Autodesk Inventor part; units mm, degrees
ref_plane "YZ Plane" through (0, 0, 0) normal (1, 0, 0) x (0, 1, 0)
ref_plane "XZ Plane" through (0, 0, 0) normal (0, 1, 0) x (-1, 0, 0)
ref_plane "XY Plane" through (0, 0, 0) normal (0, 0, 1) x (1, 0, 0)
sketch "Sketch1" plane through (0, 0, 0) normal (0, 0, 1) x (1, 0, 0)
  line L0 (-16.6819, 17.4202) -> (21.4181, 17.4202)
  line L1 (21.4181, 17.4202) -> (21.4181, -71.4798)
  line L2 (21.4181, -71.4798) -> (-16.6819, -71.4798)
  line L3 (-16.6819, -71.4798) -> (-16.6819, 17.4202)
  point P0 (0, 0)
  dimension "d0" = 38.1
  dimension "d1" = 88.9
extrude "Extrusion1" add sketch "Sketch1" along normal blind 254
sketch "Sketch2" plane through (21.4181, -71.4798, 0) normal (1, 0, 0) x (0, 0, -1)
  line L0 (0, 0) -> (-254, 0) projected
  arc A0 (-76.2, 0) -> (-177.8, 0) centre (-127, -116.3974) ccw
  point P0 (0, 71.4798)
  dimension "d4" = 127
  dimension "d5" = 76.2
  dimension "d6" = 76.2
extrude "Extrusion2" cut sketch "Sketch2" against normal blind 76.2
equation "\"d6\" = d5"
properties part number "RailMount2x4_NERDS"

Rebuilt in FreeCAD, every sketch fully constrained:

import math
import FreeCAD as App
import Part
import Sketcher
from FreeCAD import Vector
Q = App.Units.Quantity


def add_polygon(sketch, points):
    """Adds a closed chain of lines whose ends are joined by coincident constraints."""
    first, n = sketch.GeometryCount, len(points)
    for a, b in zip(points, points[1:] + points[:1]):
        sketch.addGeometry(Part.LineSegment(App.Vector(*a, 0), App.Vector(*b, 0)), False)
    for i in range(n):
        sketch.addConstraint(Sketcher.Constraint("Coincident", first + i, 2, first + (i + 1) % n, 1))

doc = App.newDocument("Part")
params = doc.addObject("Spreadsheet::Sheet", "Params")
for row, (alias, value) in enumerate([
    ("sketch1_width", "1.5 in"),
    ("sketch1_height", "3.5 in"),
    ("pad1_length", "10 in"),
    ("sketch2_radius", "5 in"),
    ("pocket1_length", "3 in"),
], start=1):
    params.set(f"A{row}", alias)
    params.set(f"B{row}", "=" + value)
    params.setAlias(f"B{row}", alias)

body = doc.addObject("PartDesign::Body", "Body")

sketch1 = body.newObject("Sketcher::SketchObject", "Sketch")
sketch1.AttachmentSupport = (doc.getObject("XY_Plane"), [""])
sketch1.MapMode = "FlatFace"
add_polygon(sketch1, [(21, 17), (-17, 17), (-17, -71), (21, -71)])
sketch1.addConstraint([
    Sketcher.Constraint("Horizontal", 0),
    Sketcher.Constraint("Vertical", 1),
    Sketcher.Constraint("Horizontal", 2),
    Sketcher.Constraint("Vertical", 3),
    Sketcher.Constraint("DistanceX", 0, 2, 0, 1, Q("1.5 in")),
    Sketcher.Constraint("DistanceY", 1, 2, 1, 1, Q("3.5 in")),
    Sketcher.Constraint("DistanceX", 0, 2, -1, 1, 16.682),
    Sketcher.Constraint("DistanceY", -1, 1, 0, 2, 17.4202),
])
sketch1.setExpression("Constraints[8]", "Params.sketch1_width")
sketch1.setExpression("Constraints[9]", "Params.sketch1_height")
pad1 = body.newObject("PartDesign::Pad", "Pad")
pad1.Profile = sketch1
pad1.setExpression("Length", "Params.pad1_length")

sketch2 = body.newObject("Sketcher::SketchObject", "Sketch001")
sketch2.AttachmentSupport = (doc.getObject("YZ_Plane"), [""])
sketch2.MapMode = "FlatFace"
sketch2.AttachmentOffset = App.Placement(Vector(0, 0, 21.4181), App.Rotation())
sketch2.addGeometry([
    Part.LineSegment(Vector(-71, 178, 0), Vector(-71, 76, 0)),
    Part.ArcOfCircle(Part.Circle(Vector(-188, 127, 0), Vector(0, 0, 1), 127), math.radians(-24), math.radians(24)),
], False)
sketch2.addConstraint([
    Sketcher.Constraint("Coincident", 0, 1, 1, 2),
    Sketcher.Constraint("Coincident", 1, 1, 0, 2),
    Sketcher.Constraint("Vertical", 0),
    Sketcher.Constraint("Radius", 1, Q("5 in")),
    Sketcher.Constraint("DistanceY", -1, 1, 1, 3, Q("5 in")),
    Sketcher.Constraint("DistanceY", -1, 1, 1, 1, Q("3 in")),
    Sketcher.Constraint("DistanceX", 1, 3, -1, 1, 187.8772),
])
sketch2.setExpression("Constraints[3]", "Params.sketch2_radius")
pocket1 = body.newObject("PartDesign::Pocket", "Pocket")
pocket1.Profile = sketch2
pocket1.setExpression("Length", "Params.pocket1_length")

doc.recompute()
